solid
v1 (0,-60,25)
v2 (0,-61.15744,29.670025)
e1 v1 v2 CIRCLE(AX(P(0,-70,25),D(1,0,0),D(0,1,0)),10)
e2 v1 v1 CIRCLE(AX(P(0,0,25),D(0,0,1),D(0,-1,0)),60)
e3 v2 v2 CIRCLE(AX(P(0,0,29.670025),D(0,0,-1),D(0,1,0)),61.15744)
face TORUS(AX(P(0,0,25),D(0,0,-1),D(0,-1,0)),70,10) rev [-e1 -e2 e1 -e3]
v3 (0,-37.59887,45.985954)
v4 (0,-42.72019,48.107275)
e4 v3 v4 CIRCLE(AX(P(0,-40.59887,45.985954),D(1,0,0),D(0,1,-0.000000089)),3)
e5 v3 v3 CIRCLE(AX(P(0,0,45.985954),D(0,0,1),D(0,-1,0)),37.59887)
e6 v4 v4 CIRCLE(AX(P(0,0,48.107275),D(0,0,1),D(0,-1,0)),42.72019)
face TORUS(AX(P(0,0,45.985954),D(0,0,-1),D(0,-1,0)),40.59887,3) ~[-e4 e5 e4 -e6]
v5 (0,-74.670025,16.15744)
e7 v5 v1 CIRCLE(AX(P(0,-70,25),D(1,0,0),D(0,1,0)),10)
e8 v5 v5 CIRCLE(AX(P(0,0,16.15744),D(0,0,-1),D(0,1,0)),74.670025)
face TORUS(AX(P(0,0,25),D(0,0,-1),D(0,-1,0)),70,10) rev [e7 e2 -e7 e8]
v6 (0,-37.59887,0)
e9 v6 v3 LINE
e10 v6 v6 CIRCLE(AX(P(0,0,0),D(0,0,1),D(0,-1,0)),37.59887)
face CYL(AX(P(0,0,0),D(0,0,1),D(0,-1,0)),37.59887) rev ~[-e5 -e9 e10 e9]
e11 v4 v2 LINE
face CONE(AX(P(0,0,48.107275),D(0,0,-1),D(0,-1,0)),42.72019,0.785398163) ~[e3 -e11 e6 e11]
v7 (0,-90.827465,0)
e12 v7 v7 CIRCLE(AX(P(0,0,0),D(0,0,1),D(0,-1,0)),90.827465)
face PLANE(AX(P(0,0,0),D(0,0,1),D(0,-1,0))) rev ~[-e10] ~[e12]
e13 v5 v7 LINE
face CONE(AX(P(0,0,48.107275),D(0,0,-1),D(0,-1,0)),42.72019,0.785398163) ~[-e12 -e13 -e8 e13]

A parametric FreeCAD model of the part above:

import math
import FreeCAD as App
import Part
import Sketcher

V = App.Vector
Q = App.Units.Quantity

doc = App.newDocument("Part")
body = doc.addObject("PartDesign::Body", "Body")

# Sketch on YZ plane
sketch1 = body.newObject("Sketcher::SketchObject", "Sketch")
sketch1.AttachmentSupport = (doc.getObject("YZ_Plane"), [""])
sketch1.MapMode = "FlatFace"
sketch1.addGeometry(Part.LineSegment(V(-90.8, 0, 0), V(-37.6, 0, 0)), False)
sketch1.addGeometry(Part.LineSegment(V(-37.6, 0, 0), V(-37.6, 46, 0)), False)
sketch1.addGeometry(Part.ArcOfCircle(Part.Circle(V(-40.6, 46, 0), V(0, 0, 1), 3), math.radians(0), math.radians(135)), False)
sketch1.addGeometry(Part.LineSegment(V(-42.7, 48.1, 0), V(-90.8, 0, 0)), False)
sketch1.addConstraint(Sketcher.Constraint("Coincident", 0, 2, 1, 1))
sketch1.addConstraint(Sketcher.Constraint("Tangent", 1, 2, 2, 1))
sketch1.addConstraint(Sketcher.Constraint("Tangent", 2, 2, 3, 1))
sketch1.addConstraint(Sketcher.Constraint("Coincident", 3, 2, 0, 1))
sketch1.addConstraint(Sketcher.Constraint("Horizontal", 0))
sketch1.addConstraint(Sketcher.Constraint("Vertical", 1))
sketch1.addConstraint(Sketcher.Constraint("PointOnObject", 0, 2, -1))
sketch1.addConstraint(Sketcher.Constraint("Radius", 2, 3.0))
sketch1.addConstraint(Sketcher.Constraint("Angle", 3, Q("-135 deg")))
sketch1.addConstraint(Sketcher.Constraint("Distance", 3, 68.033961))
sketch1.addConstraint(Sketcher.Constraint("DistanceX", 2, 3, -1, 1, 40.59887))
revolution = body.newObject("PartDesign::Revolution", "Revolution")
revolution.Profile = sketch1
revolution.ReferenceAxis = (sketch1, ["V_Axis"])
revolution.Angle = 360

# Sketch on YZ plane
sketch2 = body.newObject("Sketcher::SketchObject", "Sketch001")
sketch2.AttachmentSupport = (doc.getObject("YZ_Plane"), [""])
sketch2.MapMode = "FlatFace"
sketch2.addGeometry(Part.Circle(V(-70, 25, 0), V(0, 0, 1), 10), False)
sketch2.addConstraint(Sketcher.Constraint("Diameter", 0, 20.0))
sketch2.addConstraint(Sketcher.Constraint("DistanceX", 0, 3, -1, 1, 70.0))
sketch2.addConstraint(Sketcher.Constraint("DistanceY", -1, 1, 0, 3, 25.0))
groove = body.newObject("PartDesign::Groove", "Groove")
groove.Profile = sketch2
groove.ReferenceAxis = (sketch2, ["V_Axis"])
groove.Angle = 360

doc.recompute()
